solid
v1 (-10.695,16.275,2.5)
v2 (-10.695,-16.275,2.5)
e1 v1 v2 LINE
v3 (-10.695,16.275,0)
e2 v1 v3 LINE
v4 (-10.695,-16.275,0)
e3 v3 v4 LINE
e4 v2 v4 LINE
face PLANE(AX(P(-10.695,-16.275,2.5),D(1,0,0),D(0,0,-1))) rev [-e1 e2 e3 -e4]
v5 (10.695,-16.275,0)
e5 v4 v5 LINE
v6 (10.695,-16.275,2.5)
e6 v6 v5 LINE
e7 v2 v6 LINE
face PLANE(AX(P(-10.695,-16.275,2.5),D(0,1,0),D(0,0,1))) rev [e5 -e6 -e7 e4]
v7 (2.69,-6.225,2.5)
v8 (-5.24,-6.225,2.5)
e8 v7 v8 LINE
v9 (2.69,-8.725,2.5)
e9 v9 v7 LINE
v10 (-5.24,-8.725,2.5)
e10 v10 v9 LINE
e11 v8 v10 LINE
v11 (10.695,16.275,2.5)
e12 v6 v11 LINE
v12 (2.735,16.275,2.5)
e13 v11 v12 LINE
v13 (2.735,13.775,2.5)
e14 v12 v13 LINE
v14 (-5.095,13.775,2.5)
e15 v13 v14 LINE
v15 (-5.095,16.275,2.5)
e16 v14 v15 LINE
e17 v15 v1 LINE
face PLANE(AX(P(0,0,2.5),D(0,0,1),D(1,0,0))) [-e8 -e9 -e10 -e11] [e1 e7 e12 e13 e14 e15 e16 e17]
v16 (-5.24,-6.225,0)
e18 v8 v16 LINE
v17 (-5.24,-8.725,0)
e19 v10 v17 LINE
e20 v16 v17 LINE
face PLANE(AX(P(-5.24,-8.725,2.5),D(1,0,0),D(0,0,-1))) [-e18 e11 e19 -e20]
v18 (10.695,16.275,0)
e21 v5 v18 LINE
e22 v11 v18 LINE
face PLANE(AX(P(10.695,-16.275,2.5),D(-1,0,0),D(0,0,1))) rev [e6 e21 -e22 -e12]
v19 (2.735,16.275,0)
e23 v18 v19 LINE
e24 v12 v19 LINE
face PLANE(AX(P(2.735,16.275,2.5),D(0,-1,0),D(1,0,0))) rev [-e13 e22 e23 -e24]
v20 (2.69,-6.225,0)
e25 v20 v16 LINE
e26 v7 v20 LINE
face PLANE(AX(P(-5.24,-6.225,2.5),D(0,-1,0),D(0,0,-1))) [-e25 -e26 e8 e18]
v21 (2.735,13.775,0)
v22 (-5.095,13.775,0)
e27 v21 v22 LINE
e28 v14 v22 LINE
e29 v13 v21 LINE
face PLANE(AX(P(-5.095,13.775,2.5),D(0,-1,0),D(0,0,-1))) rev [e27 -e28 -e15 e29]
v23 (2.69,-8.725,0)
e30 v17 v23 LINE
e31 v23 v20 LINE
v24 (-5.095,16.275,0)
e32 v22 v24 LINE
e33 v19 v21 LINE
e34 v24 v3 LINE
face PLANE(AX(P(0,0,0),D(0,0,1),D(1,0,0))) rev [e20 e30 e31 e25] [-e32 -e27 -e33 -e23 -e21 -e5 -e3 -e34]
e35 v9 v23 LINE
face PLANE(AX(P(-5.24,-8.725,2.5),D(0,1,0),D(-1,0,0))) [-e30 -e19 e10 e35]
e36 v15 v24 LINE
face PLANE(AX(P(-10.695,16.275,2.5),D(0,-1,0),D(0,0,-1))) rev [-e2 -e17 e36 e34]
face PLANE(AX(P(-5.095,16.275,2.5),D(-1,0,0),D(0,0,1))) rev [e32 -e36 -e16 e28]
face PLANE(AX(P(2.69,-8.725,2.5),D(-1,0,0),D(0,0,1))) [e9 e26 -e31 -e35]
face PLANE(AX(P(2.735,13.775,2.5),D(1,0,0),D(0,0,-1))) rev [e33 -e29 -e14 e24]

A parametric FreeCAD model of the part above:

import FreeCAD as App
import Part
import Sketcher

V = App.Vector
Q = App.Units.Quantity

doc = App.newDocument("Part")
body = doc.addObject("PartDesign::Body", "Body")

# Sketch on XY plane
sketch1 = body.newObject("Sketcher::SketchObject", "Sketch")
sketch1.AttachmentSupport = (doc.getObject("XY_Plane"), [""])
sketch1.MapMode = "FlatFace"
sketch1.addGeometry([
    Part.LineSegment(V(-5.1, 16.3, 0), V(-10.7, 16.3, 0)),  # 0
    Part.LineSegment(V(-10.7, 16.3, 0), V(-10.7, -16.3, 0)),  # 1
    Part.LineSegment(V(-10.7, -16.3, 0), V(10.7, -16.3, 0)),  # 2
    Part.LineSegment(V(10.7, -16.3, 0), V(10.7, 16.3, 0)),  # 3
    Part.LineSegment(V(10.7, 16.3, 0), V(2.7, 16.3, 0)),  # 4
    Part.LineSegment(V(2.7, 16.3, 0), V(2.7, 13.8, 0)),  # 5
    Part.LineSegment(V(2.7, 13.8, 0), V(-5.1, 13.8, 0)),  # 6
    Part.LineSegment(V(-5.1, 13.8, 0), V(-5.1, 16.3, 0)),  # 7
    Part.LineSegment(V(-5.2, -8.7, 0), V(-5.2, -6.2, 0)),  # 8
    Part.LineSegment(V(-5.2, -6.2, 0), V(2.7, -6.2, 0)),  # 9
    Part.LineSegment(V(2.7, -6.2, 0), V(2.7, -8.7, 0)),  # 10
    Part.LineSegment(V(2.7, -8.7, 0), V(-5.2, -8.7, 0)),  # 11
], False)
sketch1.addConstraint([
    Sketcher.Constraint("Coincident", 0, 2, 1, 1),
    Sketcher.Constraint("Coincident", 1, 2, 2, 1),
    Sketcher.Constraint("Coincident", 2, 2, 3, 1),
    Sketcher.Constraint("Coincident", 3, 2, 4, 1),
    Sketcher.Constraint("Coincident", 4, 2, 5, 1),
    Sketcher.Constraint("Coincident", 5, 2, 6, 1),
    Sketcher.Constraint("Coincident", 6, 2, 7, 1),
    Sketcher.Constraint("Coincident", 7, 2, 0, 1),
    Sketcher.Constraint("Coincident", 8, 2, 9, 1),
    Sketcher.Constraint("Coincident", 9, 2, 10, 1),
    Sketcher.Constraint("Coincident", 10, 2, 11, 1),
    Sketcher.Constraint("Coincident", 11, 2, 8, 1),
    Sketcher.Constraint("Horizontal", 0),
    Sketcher.Constraint("Vertical", 1),
    Sketcher.Constraint("Horizontal", 2),
    Sketcher.Constraint("Vertical", 3),
    Sketcher.Constraint("Horizontal", 4),
    Sketcher.Constraint("Vertical", 5),
    Sketcher.Constraint("Horizontal", 6),
    Sketcher.Constraint("Vertical", 7),
    Sketcher.Constraint("Vertical", 8),
    Sketcher.Constraint("Horizontal", 9),
    Sketcher.Constraint("Vertical", 10),
    Sketcher.Constraint("Horizontal", 11),
    Sketcher.Constraint("Symmetric", 0, 2, 2, 2, -1, 1),
    Sketcher.Constraint("Horizontal", 0, 2, 3, 2),
    Sketcher.Constraint("Equal", 7, 8),
    Sketcher.Constraint("DistanceX", 0, 2, 0, 1, Q("5.6 mm")),
    Sketcher.Constraint("DistanceY", 5, 2, 5, 1, Q("2.5 mm")),
    Sketcher.Constraint("DistanceY", 8, 2, 6, 2, Q("20 mm")),
    Sketcher.Constraint("DistanceX", 2, 1, 2, 2, Q("21.39 mm")),
    Sketcher.Constraint("DistanceX", 4, 2, 4, 1, Q("7.96 mm")),
    Sketcher.Constraint("DistanceX", 9, 1, 9, 2, Q("7.93 mm")),
    Sketcher.Constraint("DistanceY", 1, 2, 1, 1, Q("32.55 mm")),
    Sketcher.Constraint("DistanceX", 8, 2, -1, 1, Q("5.24 mm")),
])
pad1 = body.newObject("PartDesign::Pad", "Pad")
pad1.Profile = sketch1
pad1.Length = 2.5

doc.recompute()
